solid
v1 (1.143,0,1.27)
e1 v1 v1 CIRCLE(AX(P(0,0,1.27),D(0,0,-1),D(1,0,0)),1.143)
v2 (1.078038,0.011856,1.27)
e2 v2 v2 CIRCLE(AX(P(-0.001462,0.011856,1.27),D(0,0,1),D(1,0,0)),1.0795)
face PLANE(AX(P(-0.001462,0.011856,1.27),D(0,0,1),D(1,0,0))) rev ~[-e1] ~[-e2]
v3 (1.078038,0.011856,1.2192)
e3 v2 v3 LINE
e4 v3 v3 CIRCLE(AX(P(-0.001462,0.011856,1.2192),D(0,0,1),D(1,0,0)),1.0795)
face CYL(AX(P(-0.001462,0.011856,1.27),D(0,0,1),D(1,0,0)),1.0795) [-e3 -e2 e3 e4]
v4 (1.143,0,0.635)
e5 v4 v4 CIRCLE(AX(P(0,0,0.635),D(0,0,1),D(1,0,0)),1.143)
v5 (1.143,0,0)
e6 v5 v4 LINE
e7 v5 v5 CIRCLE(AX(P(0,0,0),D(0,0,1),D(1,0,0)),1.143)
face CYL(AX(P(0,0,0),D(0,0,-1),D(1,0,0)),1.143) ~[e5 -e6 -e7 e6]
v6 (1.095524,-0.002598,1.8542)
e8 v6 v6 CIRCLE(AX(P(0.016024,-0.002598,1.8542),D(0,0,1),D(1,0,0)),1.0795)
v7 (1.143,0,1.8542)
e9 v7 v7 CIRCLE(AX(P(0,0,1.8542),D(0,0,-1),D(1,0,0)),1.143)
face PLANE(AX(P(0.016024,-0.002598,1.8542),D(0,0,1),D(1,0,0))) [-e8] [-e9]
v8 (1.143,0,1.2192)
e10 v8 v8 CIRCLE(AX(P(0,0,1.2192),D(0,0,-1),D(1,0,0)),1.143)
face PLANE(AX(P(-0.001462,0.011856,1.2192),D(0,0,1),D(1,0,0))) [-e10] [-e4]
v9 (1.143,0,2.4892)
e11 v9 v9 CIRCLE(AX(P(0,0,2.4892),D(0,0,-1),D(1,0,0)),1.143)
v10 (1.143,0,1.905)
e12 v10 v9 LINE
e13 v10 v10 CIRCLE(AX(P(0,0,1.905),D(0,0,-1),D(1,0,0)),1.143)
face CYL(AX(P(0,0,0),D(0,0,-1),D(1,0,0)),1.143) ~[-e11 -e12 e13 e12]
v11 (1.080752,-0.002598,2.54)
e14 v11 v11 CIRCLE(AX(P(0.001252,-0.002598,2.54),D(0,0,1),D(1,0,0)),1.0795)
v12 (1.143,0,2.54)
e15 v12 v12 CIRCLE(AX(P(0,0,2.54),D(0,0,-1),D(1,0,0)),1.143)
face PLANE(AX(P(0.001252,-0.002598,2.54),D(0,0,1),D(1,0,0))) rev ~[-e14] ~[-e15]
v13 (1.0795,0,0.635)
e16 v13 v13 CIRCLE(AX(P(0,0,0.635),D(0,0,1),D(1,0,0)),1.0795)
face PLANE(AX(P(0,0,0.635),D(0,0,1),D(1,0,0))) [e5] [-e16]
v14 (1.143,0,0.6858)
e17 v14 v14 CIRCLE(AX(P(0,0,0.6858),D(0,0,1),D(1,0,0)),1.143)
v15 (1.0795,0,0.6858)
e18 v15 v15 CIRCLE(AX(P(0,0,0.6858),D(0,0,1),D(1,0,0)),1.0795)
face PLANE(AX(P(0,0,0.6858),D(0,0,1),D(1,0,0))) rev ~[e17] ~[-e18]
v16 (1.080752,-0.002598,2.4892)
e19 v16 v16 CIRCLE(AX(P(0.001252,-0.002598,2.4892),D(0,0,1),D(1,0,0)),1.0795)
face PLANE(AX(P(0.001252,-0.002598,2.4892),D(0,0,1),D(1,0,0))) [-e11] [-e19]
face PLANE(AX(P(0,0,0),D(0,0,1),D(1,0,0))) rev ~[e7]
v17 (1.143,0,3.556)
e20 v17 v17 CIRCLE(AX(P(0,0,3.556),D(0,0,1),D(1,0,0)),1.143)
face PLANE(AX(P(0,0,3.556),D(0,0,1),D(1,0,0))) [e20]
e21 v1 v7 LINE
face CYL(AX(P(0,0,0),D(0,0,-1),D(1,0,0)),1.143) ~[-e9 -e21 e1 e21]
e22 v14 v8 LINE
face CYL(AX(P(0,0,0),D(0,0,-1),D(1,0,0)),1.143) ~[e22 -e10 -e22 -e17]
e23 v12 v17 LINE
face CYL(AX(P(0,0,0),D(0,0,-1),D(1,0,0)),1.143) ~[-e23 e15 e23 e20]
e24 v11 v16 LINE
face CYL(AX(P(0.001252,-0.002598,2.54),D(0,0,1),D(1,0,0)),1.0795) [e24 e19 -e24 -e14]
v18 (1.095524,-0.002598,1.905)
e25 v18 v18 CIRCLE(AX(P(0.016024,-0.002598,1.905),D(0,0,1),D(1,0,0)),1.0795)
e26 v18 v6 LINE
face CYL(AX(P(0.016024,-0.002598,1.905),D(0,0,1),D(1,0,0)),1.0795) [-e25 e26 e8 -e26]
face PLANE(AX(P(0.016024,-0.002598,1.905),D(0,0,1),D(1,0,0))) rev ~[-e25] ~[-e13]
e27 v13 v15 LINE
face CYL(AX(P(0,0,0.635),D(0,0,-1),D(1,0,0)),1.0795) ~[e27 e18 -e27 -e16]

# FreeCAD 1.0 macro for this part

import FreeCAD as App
import Part
import Sketcher
from FreeCAD import Vector
Q = App.Units.Quantity

doc = App.newDocument("Part")
body = doc.addObject("PartDesign::Body", "Body")

sketch1 = doc.addObject("Sketcher::SketchObject", "Sketch")
body.addObject(sketch1)
sketch1.AttachmentSupport = (doc.XY_Plane, [""])
sketch1.MapMode = "FlatFace"
sketch1.addGeometry(Part.Circle(Vector(0, 0, 0), Vector(0, 0, 1), 1.143), False)
sketch1.addConstraint([
    Sketcher.Constraint("Coincident", 0, 3, -1, 1),
    Sketcher.Constraint("Diameter", 0, Q("0.09 in")),
])
pad1 = doc.addObject("PartDesign::Pad", "Pad")
body.addObject(pad1)
pad1.Profile = sketch1
pad1.Length = Q("0.14 in")

sketch2 = doc.addObject("Sketcher::SketchObject", "Sketch001")
body.addObject(sketch2)
sketch2.AttachmentSupport = (doc.XY_Plane, [""])
sketch2.MapMode = "FlatFace"
sketch2.AttachmentOffset = App.Placement(Vector(0, 0, 0.025 * 25.4), App.Rotation())
sketch2.addGeometry([
    Part.Circle(Vector(0, 0, 0), Vector(0, 0, 1), 1.143),
    Part.Circle(Vector(0, 0, 0), Vector(0, 0, 1), 1.0795),
], False)
sketch2.addConstraint([
    Sketcher.Constraint("Coincident", 0, 3, -1, 1),
    Sketcher.Constraint("Coincident", 1, 3, -1, 1),
    Sketcher.Constraint("Diameter", 0, Q("0.09 in")),
    Sketcher.Constraint("Diameter", 1, Q("0.085 in")),
])
pocket1 = doc.addObject("PartDesign::Pocket", "Pocket")
body.addObject(pocket1)
pocket1.Profile = sketch2
pocket1.Length = Q("0.002 in")
pocket1.Reversed = True

sketch3 = doc.addObject("Sketcher::SketchObject", "Sketch002")
body.addObject(sketch3)
sketch3.AttachmentSupport = (doc.XY_Plane, [""])
sketch3.MapMode = "FlatFace"
sketch3.AttachmentOffset = App.Placement(Vector(0, 0, 0.05 * 25.4), App.Rotation())
sketch3.addGeometry([
    Part.Circle(Vector(-0.001462, 0.011856, 0), Vector(0, 0, 1), 1.1557),
    Part.Circle(Vector(-0.001462, 0.011856, 0), Vector(0, 0, 1), 1.0795),
], False)
sketch3.addConstraint([
    Sketcher.Constraint("Coincident", 1, 3, 0, 3),
    Sketcher.Constraint("Diameter", 0, Q("0.091 in")),
    Sketcher.Constraint("Diameter", 1, Q("0.085 in")),
    Sketcher.Constraint("DistanceX", 0, 3, -1, 1, 0.001462),
    Sketcher.Constraint("DistanceY", -1, 1, 0, 3, 0.011856),
])
pocket2 = doc.addObject("PartDesign::Pocket", "Pocket001")
body.addObject(pocket2)
pocket2.Profile = sketch3
pocket2.Length = Q("0.002 in")

sketch4 = doc.addObject("Sketcher::SketchObject", "Sketch003")
body.addObject(sketch4)
sketch4.AttachmentSupport = (doc.XY_Plane, [""])
sketch4.MapMode = "FlatFace"
sketch4.AttachmentOffset = App.Placement(Vector(0, 0, 0.075 * 25.4), App.Rotation())
sketch4.addGeometry([
    Part.Circle(Vector(0.016024, -0.002598, 0), Vector(0, 0, 1), 1.1684),
    Part.Circle(Vector(0.016024, -0.002598, 0), Vector(0, 0, 1), 1.0795),
], False)
sketch4.addConstraint([
    Sketcher.Constraint("Coincident", 1, 3, 0, 3),
    Sketcher.Constraint("Diameter", 0, Q("0.092 in")),
    Sketcher.Constraint("Diameter", 1, Q("0.085 in")),
    Sketcher.Constraint("DistanceX", -1, 1, 0, 3, 0.016024),
    Sketcher.Constraint("DistanceY", 0, 3, -1, 1, 0.002598),
])
pocket3 = doc.addObject("PartDesign::Pocket", "Pocket002")
body.addObject(pocket3)
pocket3.Profile = sketch4
pocket3.Length = Q("0.002 in")

sketch5 = doc.addObject("Sketcher::SketchObject", "Sketch004")
body.addObject(sketch5)
sketch5.AttachmentSupport = (doc.XY_Plane, [""])
sketch5.MapMode = "FlatFace"
sketch5.AttachmentOffset = App.Placement(Vector(0, 0, 0.1 * 25.4), App.Rotation())
sketch5.addGeometry([
    Part.Circle(Vector(0.001252, -0.002598, 0), Vector(0, 0, 1), 1.1557),
    Part.Circle(Vector(0.001252, -0.002598, 0), Vector(0, 0, 1), 1.0795),
], False)
sketch5.addConstraint([
    Sketcher.Constraint("Coincident", 1, 3, 0, 3),
    Sketcher.Constraint("Diameter", 0, Q("0.091 in")),
    Sketcher.Constraint("Diameter", 1, Q("0.085 in")),
    Sketcher.Constraint("DistanceX", -1, 1, 0, 3, 0.001252),
    Sketcher.Constraint("DistanceY", 0, 3, -1, 1, 0.002598),
])
pocket4 = doc.addObject("PartDesign::Pocket", "Pocket003")
body.addObject(pocket4)
pocket4.Profile = sketch5
pocket4.Length = Q("0.002 in")

doc.recompute()
